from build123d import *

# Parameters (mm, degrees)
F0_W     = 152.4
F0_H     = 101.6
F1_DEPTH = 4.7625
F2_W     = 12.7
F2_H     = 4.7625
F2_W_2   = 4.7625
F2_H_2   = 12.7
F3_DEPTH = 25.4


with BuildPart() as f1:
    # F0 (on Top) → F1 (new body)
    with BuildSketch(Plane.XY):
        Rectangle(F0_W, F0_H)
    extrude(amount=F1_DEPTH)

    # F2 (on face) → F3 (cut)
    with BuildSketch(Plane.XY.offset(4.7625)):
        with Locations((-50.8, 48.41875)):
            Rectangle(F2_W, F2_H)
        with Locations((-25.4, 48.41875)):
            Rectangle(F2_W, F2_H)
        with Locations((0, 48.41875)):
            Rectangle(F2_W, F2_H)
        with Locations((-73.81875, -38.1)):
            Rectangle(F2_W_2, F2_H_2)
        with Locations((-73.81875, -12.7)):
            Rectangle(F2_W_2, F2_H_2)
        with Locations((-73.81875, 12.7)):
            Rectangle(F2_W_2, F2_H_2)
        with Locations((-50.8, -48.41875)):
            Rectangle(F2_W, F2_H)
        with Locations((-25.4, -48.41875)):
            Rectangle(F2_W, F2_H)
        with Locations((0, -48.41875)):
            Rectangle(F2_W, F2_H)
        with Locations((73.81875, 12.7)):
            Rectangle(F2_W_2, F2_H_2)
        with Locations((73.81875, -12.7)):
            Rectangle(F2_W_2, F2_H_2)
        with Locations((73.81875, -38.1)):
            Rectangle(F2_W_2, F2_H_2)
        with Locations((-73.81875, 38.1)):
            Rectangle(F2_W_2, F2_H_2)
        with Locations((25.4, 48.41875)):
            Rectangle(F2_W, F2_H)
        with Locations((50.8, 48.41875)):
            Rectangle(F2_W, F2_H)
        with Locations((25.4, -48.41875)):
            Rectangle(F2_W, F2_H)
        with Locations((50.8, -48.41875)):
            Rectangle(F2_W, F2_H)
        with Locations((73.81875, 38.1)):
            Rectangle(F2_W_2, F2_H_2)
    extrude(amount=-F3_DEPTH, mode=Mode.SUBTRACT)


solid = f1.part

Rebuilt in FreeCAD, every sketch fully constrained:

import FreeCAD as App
import Part
import Sketcher
Q = App.Units.Quantity


def add_polygon(sketch, points):
    """Adds a closed chain of lines whose ends are joined by coincident constraints."""
    first, n = sketch.GeometryCount, len(points)
    for a, b in zip(points, points[1:] + points[:1]):
        sketch.addGeometry(Part.LineSegment(App.Vector(*a, 0), App.Vector(*b, 0)), False)
    for i in range(n):
        sketch.addConstraint(Sketcher.Constraint("Coincident", first + i, 2, first + (i + 1) % n, 1))

doc = App.newDocument("Part")
params = doc.addObject("Spreadsheet::Sheet", "Params")
for row, (alias, value) in enumerate([
    ("sketch1_width", "6 in"),
    ("sketch1_height", "4 in"),
    ("pad1_length", "0.1875 in"),
    ("sketch2_width", "0.5 in"),
    ("sketch2_width2", "0.1875 in"),
    ("pocket1_length", "1 in"),
], start=1):
    params.set(f"A{row}", alias)
    params.set(f"B{row}", "=" + value)
    params.setAlias(f"B{row}", alias)

body = doc.addObject("PartDesign::Body", "Body")

# Sketch on XY plane
sketch1 = doc.addObject("Sketcher::SketchObject", "Sketch")
body.addObject(sketch1)
sketch1.AttachmentSupport = (doc.XY_Plane, [""])
sketch1.MapMode = "FlatFace"
add_polygon(sketch1, [(-76, 51), (-76, -51), (76, -51), (76, 51)])  # lines 0-3
sketch1.addConstraint(Sketcher.Constraint("Vertical", 0))
sketch1.addConstraint(Sketcher.Constraint("Horizontal", 1))
sketch1.addConstraint(Sketcher.Constraint("Vertical", 2))
sketch1.addConstraint(Sketcher.Constraint("Horizontal", 3))
sketch1.addConstraint(Sketcher.Constraint("Symmetric", 0, 2, 2, 2, -1, 1))
sketch1.addConstraint(Sketcher.Constraint("DistanceX", 1, 1, 1, 2, Q("6 in")))
sketch1.addConstraint(Sketcher.Constraint("DistanceY", 0, 2, 0, 1, Q("4 in")))
sketch1.setExpression("Constraints[9]", "Params.sketch1_width")
sketch1.setExpression("Constraints[10]", "Params.sketch1_height")
pad1 = doc.addObject("PartDesign::Pad", "Pad")
body.addObject(pad1)
pad1.Profile = sketch1
pad1.setExpression("Length", "Params.pad1_length")

# Sketch on XY plane
sketch2 = doc.addObject("Sketcher::SketchObject", "Sketch001")
body.addObject(sketch2)
sketch2.AttachmentSupport = (doc.XY_Plane, [""])
sketch2.MapMode = "FlatFace"
sketch2.AttachmentOffset = App.Placement(App.Vector(0, 0, 0.1875 * 25.4), App.Rotation())
add_polygon(sketch2, [(-57.1, 50.8), (-57.1, 46), (-44.5, 46), (-44.5, 50.8)])  # lines 0-3
add_polygon(sketch2, [(-31.8, 50.8), (-31.8, 46), (-19.1, 46), (-19.1, 50.8)])  # lines 4-7
add_polygon(sketch2, [(-6.3, 50.8), (-6.3, 46), (6.3, 46), (6.3, 50.8)])  # lines 8-11
add_polygon(sketch2, [(-76.2, -31.8), (-76.2, -44.5), (-71.4, -44.5), (-71.4, -31.8)])  # lines 12-15
add_polygon(sketch2, [(-76.2, -6.3), (-76.2, -19.1), (-71.4, -19.1), (-71.4, -6.3)])  # lines 16-19
add_polygon(sketch2, [(-76.2, 19.1), (-76.2, 6.3), (-71.4, 6.3), (-71.4, 19.1)])  # lines 20-23
add_polygon(sketch2, [(-57.1, -46), (-57.1, -50.8), (-44.5, -50.8), (-44.5, -46)])  # lines 24-27
add_polygon(sketch2, [(-31.8, -46), (-31.8, -50.8), (-19.1, -50.8), (-19.1, -46)])  # lines 28-31
add_polygon(sketch2, [(-6.3, -46), (-6.3, -50.8), (6.3, -50.8), (6.3, -46)])  # lines 32-35
add_polygon(sketch2, [(71.4, 19.1), (71.4, 6.3), (76.2, 6.3), (76.2, 19.1)])  # lines 36-39
add_polygon(sketch2, [(71.4, -6.3), (71.4, -19.1), (76.2, -19.1), (76.2, -6.3)])  # lines 40-43
add_polygon(sketch2, [(71.4, -31.8), (71.4, -44.5), (76.2, -44.5), (76.2, -31.8)])  # lines 44-47
add_polygon(sketch2, [(-76.2, 44.5), (-76.2, 31.8), (-71.4, 31.8), (-71.4, 44.5)])  # lines 48-51
add_polygon(sketch2, [(19.1, 50.8), (19.1, 46), (31.8, 46), (31.8, 50.8)])  # lines 52-55
add_polygon(sketch2, [(44.5, 50.8), (44.5, 46), (57.1, 46), (57.1, 50.8)])  # lines 56-59
add_polygon(sketch2, [(19.1, -46), (19.1, -50.8), (31.8, -50.8), (31.8, -46)])  # lines 60-63
add_polygon(sketch2, [(44.5, -46), (44.5, -50.8), (57.1, -50.8), (57.1, -46)])  # lines 64-67
add_polygon(sketch2, [(71.4, 44.5), (71.4, 31.8), (76.2, 31.8), (76.2, 44.5)])  # lines 68-71
sketch2.addConstraint(Sketcher.Constraint("Vertical", 0))
sketch2.addConstraint(Sketcher.Constraint("Horizontal", 1))
sketch2.addConstraint(Sketcher.Constraint("Vertical", 2))
sketch2.addConstraint(Sketcher.Constraint("Horizontal", 3))
sketch2.addConstraint(Sketcher.Constraint("Vertical", 4))
sketch2.addConstraint(Sketcher.Constraint("Horizontal", 5))
sketch2.addConstraint(Sketcher.Constraint("Vertical", 6))
sketch2.addConstraint(Sketcher.Constraint("Horizontal", 7))
sketch2.addConstraint(Sketcher.Constraint("Vertical", 8))
sketch2.addConstraint(Sketcher.Constraint("Horizontal", 9))
sketch2.addConstraint(Sketcher.Constraint("Vertical", 10))
sketch2.addConstraint(Sketcher.Constraint("Horizontal", 11))
sketch2.addConstraint(Sketcher.Constraint("Vertical", 12))
sketch2.addConstraint(Sketcher.Constraint("Horizontal", 13))
sketch2.addConstraint(Sketcher.Constraint("Vertical", 14))
sketch2.addConstraint(Sketcher.Constraint("Horizontal", 15))
sketch2.addConstraint(Sketcher.Constraint("Vertical", 16))
sketch2.addConstraint(Sketcher.Constraint("Horizontal", 17))
sketch2.addConstraint(Sketcher.Constraint("Vertical", 18))
sketch2.addConstraint(Sketcher.Constraint("Horizontal", 19))
sketch2.addConstraint(Sketcher.Constraint("Vertical", 20))
sketch2.addConstraint(Sketcher.Constraint("Horizontal", 21))
sketch2.addConstraint(Sketcher.Constraint("Vertical", 22))
sketch2.addConstraint(Sketcher.Constraint("Horizontal", 23))
sketch2.addConstraint(Sketcher.Constraint("Vertical", 24))
sketch2.addConstraint(Sketcher.Constraint("Horizontal", 25))
sketch2.addConstraint(Sketcher.Constraint("Vertical", 26))
sketch2.addConstraint(Sketcher.Constraint("Horizontal", 27))
sketch2.addConstraint(Sketcher.Constraint("Vertical", 28))
sketch2.addConstraint(Sketcher.Constraint("Horizontal", 29))
sketch2.addConstraint(Sketcher.Constraint("Vertical", 30))
sketch2.addConstraint(Sketcher.Constraint("Horizontal", 31))
sketch2.addConstraint(Sketcher.Constraint("Vertical", 32))
sketch2.addConstraint(Sketcher.Constraint("Horizontal", 33))
sketch2.addConstraint(Sketcher.Constraint("Vertical", 34))
sketch2.addConstraint(Sketcher.Constraint("Horizontal", 35))
sketch2.addConstraint(Sketcher.Constraint("Vertical", 36))
sketch2.addConstraint(Sketcher.Constraint("Horizontal", 37))
sketch2.addConstraint(Sketcher.Constraint("Vertical", 38))
sketch2.addConstraint(Sketcher.Constraint("Horizontal", 39))
sketch2.addConstraint(Sketcher.Constraint("Vertical", 40))
sketch2.addConstraint(Sketcher.Constraint("Horizontal", 41))
sketch2.addConstraint(Sketcher.Constraint("Vertical", 42))
sketch2.addConstraint(Sketcher.Constraint("Horizontal", 43))
sketch2.addConstraint(Sketcher.Constraint("Vertical", 44))
sketch2.addConstraint(Sketcher.Constraint("Horizontal", 45))
sketch2.addConstraint(Sketcher.Constraint("Vertical", 46))
sketch2.addConstraint(Sketcher.Constraint("Horizontal", 47))
sketch2.addConstraint(Sketcher.Constraint("Vertical", 48))
sketch2.addConstraint(Sketcher.Constraint("Horizontal", 49))
sketch2.addConstraint(Sketcher.Constraint("Vertical", 50))
sketch2.addConstraint(Sketcher.Constraint("Horizontal", 51))
sketch2.addConstraint(Sketcher.Constraint("Vertical", 52))
sketch2.addConstraint(Sketcher.Constraint("Horizontal", 53))
sketch2.addConstraint(Sketcher.Constraint("Vertical", 54))
sketch2.addConstraint(Sketcher.Constraint("Horizontal", 55))
sketch2.addConstraint(Sketcher.Constraint("Vertical", 56))
sketch2.addConstraint(Sketcher.Constraint("Horizontal", 57))
sketch2.addConstraint(Sketcher.Constraint("Vertical", 58))
sketch2.addConstraint(Sketcher.Constraint("Horizontal", 59))
sketch2.addConstraint(Sketcher.Constraint("Vertical", 60))
sketch2.addConstraint(Sketcher.Constraint("Horizontal", 61))
sketch2.addConstraint(Sketcher.Constraint("Vertical", 62))
sketch2.addConstraint(Sketcher.Constraint("Horizontal", 63))
sketch2.addConstraint(Sketcher.Constraint("Vertical", 64))
sketch2.addConstraint(Sketcher.Constraint("Horizontal", 65))
sketch2.addConstraint(Sketcher.Constraint("Vertical", 66))
sketch2.addConstraint(Sketcher.Constraint("Horizontal", 67))
sketch2.addConstraint(Sketcher.Constraint("Vertical", 68))
sketch2.addConstraint(Sketcher.Constraint("Horizontal", 69))
sketch2.addConstraint(Sketcher.Constraint("Vertical", 70))
sketch2.addConstraint(Sketcher.Constraint("Horizontal", 71))
sketch2.addConstraint(Sketcher.Constraint("Symmetric", 10, 2, 32, 2, -1, 1))
sketch2.addConstraint(Sketcher.Constraint("Symmetric", 8, 2, 34, 2, -1, 1))
sketch2.addConstraint(Sketcher.Constraint("Symmetric", 18, 2, 36, 2, -1, 1))
sketch2.addConstraint(Sketcher.Constraint("Symmetric", 16, 2, 38, 2, -1, 1))
sketch2.addConstraint(Sketcher.Constraint("Symmetric", 22, 2, 40, 2, -1, 1))
sketch2.addConstraint(Sketcher.Constraint("Symmetric", 20, 2, 42, 2, -1, 1))
sketch2.addConstraint(Sketcher.Constraint("Symmetric", 46, 2, 48, 2, -1, 1))
sketch2.addConstraint(Sketcher.Constraint("Symmetric", 44, 2, 50, 2, -1, 1))
sketch2.addConstraint(Sketcher.Constraint("Symmetric", 30, 2, 52, 2, -1, 1))
sketch2.addConstraint(Sketcher.Constraint("Symmetric", 28, 2, 54, 2, -1, 1))
sketch2.addConstraint(Sketcher.Constraint("Symmetric", 26, 2, 56, 2, -1, 1))
sketch2.addConstraint(Sketcher.Constraint("Symmetric", 24, 2, 58, 2, -1, 1))
sketch2.addConstraint(Sketcher.Constraint("Symmetric", 6, 2, 60, 2, -1, 1))
sketch2.addConstraint(Sketcher.Constraint("Symmetric", 4, 2, 62, 2, -1, 1))
sketch2.addConstraint(Sketcher.Constraint("Symmetric", 2, 2, 64, 2, -1, 1))
sketch2.addConstraint(Sketcher.Constraint("Symmetric", 0, 2, 66, 2, -1, 1))
sketch2.addConstraint(Sketcher.Constraint("Symmetric", 14, 2, 68, 2, -1, 1))
sketch2.addConstraint(Sketcher.Constraint("Symmetric", 12, 2, 70, 2, -1, 1))
sketch2.addConstraint(Sketcher.Constraint("Symmetric", 21, 2, 36, 2, -2))
sketch2.addConstraint(Sketcher.Constraint("Symmetric", 23, 2, 38, 2, -2))
sketch2.addConstraint(Sketcher.Constraint("Symmetric", 13, 2, 44, 2, -2))
sketch2.addConstraint(Sketcher.Constraint("Symmetric", 15, 2, 46, 2, -2))
sketch2.addConstraint(Sketcher.Constraint("Symmetric", 5, 2, 52, 2, -2))
sketch2.addConstraint(Sketcher.Constraint("Symmetric", 7, 2, 54, 2, -2))
sketch2.addConstraint(Sketcher.Constraint("Symmetric", 1, 2, 56, 2, -2))
sketch2.addConstraint(Sketcher.Constraint("Symmetric", 3, 2, 58, 2, -2))
sketch2.addConstraint(Sketcher.Constraint("Horizontal", 1, 2, 4, 2))
sketch2.addConstraint(Sketcher.Constraint("Horizontal", 3, 2, 6, 2))
sketch2.addConstraint(Sketcher.Constraint("Horizontal", 5, 2, 8, 2))
sketch2.addConstraint(Sketcher.Constraint("Horizontal", 7, 2, 10, 2))
sketch2.addConstraint(Sketcher.Constraint("Vertical", 15, 2, 16, 2))
sketch2.addConstraint(Sketcher.Constraint("Vertical", 14, 2, 17, 2))
sketch2.addConstraint(Sketcher.Constraint("Vertical", 11, 2, 32, 2))
sketch2.addConstraint(Sketcher.Constraint("Equal", 3, 5))
sketch2.addConstraint(Sketcher.Constraint("Equal", 7, 9))
sketch2.addConstraint(Sketcher.Constraint("Equal", 71, 0))
sketch2.addConstraint(Sketcher.Constraint("Equal", 67, 12))
sketch2.addConstraint(Sketcher.Constraint("Equal", 14, 16))
sketch2.addConstraint(Sketcher.Constraint("DistanceX", 1, 1, 1, 2, Q("0.5 in")))
sketch2.addConstraint(Sketcher.Constraint("DistanceY", -1, 1, 2, 2, Q("2 in")))
sketch2.addConstraint(Sketcher.Constraint("DistanceX", 12, 2, -1, 1, Q("3 in")))
sketch2.addConstraint(Sketcher.Constraint("DistanceX", 13, 1, 13, 2, Q("0.1875 in")))
sketch2.addConstraint(Sketcher.Constraint("DistanceX", 0, 2, -1, 1, Q("2.25 in")))
sketch2.addConstraint(Sketcher.Constraint("DistanceX", 4, 2, -1, 1, Q("1.25 in")))
sketch2.addConstraint(Sketcher.Constraint("DistanceY", 12, 2, -1, 1, Q("1.75 in")))
sketch2.addConstraint(Sketcher.Constraint("DistanceY", 16, 2, -1, 1, Q("0.75 in")))
sketch2.setExpression("Constraints[182]", "Params.sketch2_width")
sketch2.setExpression("Constraints[185]", "Params.sketch2_width2")
pocket1 = doc.addObject("PartDesign::Pocket", "Pocket")
body.addObject(pocket1)
pocket1.Profile = sketch2
pocket1.setExpression("Length", "Params.pocket1_length")

doc.recompute()
